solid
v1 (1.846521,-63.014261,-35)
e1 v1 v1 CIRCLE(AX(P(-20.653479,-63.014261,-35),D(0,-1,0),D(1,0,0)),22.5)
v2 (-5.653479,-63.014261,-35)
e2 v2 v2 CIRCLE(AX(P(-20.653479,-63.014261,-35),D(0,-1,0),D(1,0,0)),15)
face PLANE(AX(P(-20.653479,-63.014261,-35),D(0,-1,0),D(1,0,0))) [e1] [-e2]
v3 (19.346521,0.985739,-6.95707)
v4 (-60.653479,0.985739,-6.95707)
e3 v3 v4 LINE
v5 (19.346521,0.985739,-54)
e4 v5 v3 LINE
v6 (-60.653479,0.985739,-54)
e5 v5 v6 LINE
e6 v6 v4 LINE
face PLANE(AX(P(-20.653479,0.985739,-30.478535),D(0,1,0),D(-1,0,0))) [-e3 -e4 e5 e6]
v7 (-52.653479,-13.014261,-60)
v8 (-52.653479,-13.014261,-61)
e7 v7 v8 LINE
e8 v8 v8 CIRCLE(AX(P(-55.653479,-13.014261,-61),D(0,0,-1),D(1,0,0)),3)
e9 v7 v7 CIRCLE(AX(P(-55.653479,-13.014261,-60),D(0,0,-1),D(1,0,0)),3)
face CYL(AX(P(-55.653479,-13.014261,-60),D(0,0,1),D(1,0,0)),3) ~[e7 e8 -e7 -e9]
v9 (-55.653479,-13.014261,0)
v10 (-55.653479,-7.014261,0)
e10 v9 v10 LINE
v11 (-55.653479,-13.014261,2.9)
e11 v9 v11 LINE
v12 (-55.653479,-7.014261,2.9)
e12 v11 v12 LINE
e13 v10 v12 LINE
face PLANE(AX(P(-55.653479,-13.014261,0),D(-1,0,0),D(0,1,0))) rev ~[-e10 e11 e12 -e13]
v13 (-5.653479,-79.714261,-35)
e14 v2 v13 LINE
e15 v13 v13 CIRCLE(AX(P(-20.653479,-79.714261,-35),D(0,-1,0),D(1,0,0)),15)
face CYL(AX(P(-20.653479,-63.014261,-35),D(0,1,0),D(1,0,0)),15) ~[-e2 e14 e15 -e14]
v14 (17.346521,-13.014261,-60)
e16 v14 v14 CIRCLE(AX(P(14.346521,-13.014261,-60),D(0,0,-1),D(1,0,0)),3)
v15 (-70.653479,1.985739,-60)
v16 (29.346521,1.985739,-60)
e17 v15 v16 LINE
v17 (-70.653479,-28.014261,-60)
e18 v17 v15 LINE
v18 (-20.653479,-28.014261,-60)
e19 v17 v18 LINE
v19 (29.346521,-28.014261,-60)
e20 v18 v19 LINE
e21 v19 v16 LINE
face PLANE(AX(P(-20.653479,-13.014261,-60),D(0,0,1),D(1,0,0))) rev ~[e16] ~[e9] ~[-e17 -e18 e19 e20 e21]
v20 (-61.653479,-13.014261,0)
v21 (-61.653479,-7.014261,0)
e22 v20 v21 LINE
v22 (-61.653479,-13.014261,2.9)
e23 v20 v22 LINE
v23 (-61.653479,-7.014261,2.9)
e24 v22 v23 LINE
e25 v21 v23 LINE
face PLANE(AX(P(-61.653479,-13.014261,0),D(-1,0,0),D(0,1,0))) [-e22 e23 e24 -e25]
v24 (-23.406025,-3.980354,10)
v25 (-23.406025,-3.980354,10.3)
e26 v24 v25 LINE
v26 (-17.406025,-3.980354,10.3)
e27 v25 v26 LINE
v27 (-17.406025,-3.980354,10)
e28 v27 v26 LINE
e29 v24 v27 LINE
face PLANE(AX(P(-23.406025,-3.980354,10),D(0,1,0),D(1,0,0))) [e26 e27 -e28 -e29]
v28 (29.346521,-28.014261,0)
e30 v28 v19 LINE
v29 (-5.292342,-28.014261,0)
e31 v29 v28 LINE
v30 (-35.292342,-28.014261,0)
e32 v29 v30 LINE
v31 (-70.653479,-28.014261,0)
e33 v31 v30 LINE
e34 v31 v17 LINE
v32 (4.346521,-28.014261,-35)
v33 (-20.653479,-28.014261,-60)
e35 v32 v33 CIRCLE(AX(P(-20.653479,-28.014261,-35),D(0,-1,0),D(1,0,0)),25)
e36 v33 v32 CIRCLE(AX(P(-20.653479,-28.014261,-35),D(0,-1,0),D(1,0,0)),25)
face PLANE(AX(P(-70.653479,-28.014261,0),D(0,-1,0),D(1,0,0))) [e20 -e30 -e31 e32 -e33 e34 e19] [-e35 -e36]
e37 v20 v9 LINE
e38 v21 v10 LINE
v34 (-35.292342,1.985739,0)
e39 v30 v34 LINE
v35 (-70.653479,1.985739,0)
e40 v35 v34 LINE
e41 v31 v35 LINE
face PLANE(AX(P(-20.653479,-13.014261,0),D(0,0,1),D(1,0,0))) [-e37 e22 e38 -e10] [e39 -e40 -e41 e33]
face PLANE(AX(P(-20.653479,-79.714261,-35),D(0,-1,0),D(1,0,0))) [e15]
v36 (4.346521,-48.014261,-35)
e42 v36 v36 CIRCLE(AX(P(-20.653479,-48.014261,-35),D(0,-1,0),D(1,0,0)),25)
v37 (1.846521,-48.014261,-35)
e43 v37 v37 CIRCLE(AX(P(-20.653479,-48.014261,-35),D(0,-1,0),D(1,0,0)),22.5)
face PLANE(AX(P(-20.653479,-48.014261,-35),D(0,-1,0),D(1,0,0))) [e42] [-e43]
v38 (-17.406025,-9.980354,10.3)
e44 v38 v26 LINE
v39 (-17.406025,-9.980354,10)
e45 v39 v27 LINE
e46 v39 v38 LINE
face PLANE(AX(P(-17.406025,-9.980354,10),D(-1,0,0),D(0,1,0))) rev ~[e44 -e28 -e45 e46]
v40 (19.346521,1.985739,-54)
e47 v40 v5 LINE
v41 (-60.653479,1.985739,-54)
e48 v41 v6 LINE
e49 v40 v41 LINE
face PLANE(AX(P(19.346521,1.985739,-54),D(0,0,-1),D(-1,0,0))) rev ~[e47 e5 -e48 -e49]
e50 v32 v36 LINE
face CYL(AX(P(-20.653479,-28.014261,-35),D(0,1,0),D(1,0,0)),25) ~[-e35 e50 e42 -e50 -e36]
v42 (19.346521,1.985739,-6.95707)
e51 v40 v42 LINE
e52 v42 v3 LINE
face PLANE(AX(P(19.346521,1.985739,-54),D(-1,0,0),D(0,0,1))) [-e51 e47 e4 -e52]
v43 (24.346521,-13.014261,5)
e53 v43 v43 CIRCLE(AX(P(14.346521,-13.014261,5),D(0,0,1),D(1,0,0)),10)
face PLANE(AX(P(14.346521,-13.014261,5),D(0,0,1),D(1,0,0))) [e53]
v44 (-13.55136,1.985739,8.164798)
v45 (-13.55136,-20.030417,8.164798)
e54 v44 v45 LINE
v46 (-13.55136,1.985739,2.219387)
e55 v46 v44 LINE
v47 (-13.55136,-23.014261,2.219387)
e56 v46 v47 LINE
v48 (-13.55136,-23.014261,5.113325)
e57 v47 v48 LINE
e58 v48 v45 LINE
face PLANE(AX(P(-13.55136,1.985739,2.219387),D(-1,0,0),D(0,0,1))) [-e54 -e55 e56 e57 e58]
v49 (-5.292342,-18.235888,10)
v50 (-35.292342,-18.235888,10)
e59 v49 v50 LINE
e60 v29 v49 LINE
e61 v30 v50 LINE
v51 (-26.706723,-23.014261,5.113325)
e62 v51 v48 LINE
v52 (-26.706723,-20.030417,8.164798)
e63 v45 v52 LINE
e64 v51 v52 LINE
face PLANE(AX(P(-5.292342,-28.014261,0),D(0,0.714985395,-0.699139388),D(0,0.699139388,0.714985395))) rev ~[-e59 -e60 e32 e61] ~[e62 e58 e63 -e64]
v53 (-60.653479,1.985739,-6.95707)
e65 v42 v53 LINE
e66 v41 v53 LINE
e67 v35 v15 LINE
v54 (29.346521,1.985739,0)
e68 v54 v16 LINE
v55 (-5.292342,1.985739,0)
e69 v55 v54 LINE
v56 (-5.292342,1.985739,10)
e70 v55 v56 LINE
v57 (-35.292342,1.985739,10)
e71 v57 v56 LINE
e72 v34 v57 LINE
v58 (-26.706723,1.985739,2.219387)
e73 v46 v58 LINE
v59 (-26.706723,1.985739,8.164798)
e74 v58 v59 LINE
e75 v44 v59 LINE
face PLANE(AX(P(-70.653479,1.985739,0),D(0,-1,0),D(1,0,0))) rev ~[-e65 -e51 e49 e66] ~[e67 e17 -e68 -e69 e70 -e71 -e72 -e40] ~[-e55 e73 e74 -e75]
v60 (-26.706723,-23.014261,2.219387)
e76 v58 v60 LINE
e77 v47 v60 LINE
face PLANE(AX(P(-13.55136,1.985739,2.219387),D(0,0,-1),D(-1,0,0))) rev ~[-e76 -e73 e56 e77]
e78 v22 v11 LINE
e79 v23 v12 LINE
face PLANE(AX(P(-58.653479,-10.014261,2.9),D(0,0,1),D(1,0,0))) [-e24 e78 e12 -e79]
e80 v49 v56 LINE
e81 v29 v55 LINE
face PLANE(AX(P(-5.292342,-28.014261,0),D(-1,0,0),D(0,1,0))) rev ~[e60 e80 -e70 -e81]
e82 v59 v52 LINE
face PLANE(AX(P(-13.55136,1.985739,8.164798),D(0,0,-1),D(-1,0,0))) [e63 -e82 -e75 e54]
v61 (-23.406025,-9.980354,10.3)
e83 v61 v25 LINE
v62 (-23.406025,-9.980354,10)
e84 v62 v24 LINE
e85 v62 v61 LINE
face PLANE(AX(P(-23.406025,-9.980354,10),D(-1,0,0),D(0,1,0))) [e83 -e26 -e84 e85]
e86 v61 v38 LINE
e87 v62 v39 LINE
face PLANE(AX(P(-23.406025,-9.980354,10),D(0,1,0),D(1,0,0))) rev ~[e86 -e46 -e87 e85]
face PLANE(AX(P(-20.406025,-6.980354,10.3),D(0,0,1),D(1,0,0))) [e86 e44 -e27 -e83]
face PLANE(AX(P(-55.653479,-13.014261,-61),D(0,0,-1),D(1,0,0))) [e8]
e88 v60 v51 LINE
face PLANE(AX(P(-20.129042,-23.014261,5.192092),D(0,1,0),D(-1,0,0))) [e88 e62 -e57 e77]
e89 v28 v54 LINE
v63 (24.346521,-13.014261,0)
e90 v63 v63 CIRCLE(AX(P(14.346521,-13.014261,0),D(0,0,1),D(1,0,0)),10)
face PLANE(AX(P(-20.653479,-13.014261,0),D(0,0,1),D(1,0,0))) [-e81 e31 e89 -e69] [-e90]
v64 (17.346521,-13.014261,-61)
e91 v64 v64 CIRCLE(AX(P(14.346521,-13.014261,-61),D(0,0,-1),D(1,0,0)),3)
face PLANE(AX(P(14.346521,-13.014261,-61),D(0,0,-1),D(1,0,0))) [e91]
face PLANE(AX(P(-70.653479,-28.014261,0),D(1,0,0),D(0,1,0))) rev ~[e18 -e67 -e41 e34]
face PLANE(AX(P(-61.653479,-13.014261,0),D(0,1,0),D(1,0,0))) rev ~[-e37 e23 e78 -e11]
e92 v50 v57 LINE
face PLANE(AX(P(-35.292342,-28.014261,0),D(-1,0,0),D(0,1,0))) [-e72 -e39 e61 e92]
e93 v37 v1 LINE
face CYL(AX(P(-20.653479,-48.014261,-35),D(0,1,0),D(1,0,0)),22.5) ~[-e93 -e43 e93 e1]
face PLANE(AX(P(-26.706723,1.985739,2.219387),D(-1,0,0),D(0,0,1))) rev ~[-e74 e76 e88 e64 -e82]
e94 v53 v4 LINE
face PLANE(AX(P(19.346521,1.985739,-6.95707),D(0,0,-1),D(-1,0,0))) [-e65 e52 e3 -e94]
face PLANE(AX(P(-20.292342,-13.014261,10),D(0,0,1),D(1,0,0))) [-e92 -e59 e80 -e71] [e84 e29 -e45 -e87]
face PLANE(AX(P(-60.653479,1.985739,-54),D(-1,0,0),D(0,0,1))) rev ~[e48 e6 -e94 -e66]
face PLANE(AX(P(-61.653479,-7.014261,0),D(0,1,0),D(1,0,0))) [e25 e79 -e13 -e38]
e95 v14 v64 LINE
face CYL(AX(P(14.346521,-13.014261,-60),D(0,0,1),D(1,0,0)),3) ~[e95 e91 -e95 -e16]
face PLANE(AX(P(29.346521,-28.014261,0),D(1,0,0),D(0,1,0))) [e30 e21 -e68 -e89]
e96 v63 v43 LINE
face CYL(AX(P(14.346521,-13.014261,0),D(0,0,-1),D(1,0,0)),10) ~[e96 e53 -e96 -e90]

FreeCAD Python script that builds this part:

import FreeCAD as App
import Part
import Sketcher
from FreeCAD import Vector

doc = App.newDocument("Part")
body = doc.addObject("PartDesign::Body", "Body")

sketch1 = body.newObject("Sketcher::SketchObject", "Sketch")
sketch1.AttachmentSupport = (doc.getObject("XY_Plane"), [""])
sketch1.MapMode = "FlatFace"
sketch1.addGeometry([
    Part.LineSegment(Vector(-70.653479, 1.985739, 0), Vector(-70.653479, -28.014261, 0)),
    Part.LineSegment(Vector(-70.653479, -28.014261, 0), Vector(29.346521, -28.014261, 0)),
    Part.LineSegment(Vector(29.346521, -28.014261, 0), Vector(29.346521, 1.985739, 0)),
    Part.LineSegment(Vector(29.346521, 1.985739, 0), Vector(-70.653479, 1.985739, 0)),
], False)
sketch1.addConstraint([
    Sketcher.Constraint("Coincident", 0, 2, 1, 1),
    Sketcher.Constraint("Coincident", 1, 2, 2, 1),
    Sketcher.Constraint("Coincident", 2, 2, 3, 1),
    Sketcher.Constraint("Coincident", 3, 2, 0, 1),
    Sketcher.Constraint("Vertical", 0),
    Sketcher.Constraint("Horizontal", 1),
    Sketcher.Constraint("Vertical", 2),
    Sketcher.Constraint("Horizontal", 3),
    Sketcher.Constraint("DistanceX", 1, 1, 1, 2, 100.0),
    Sketcher.Constraint("DistanceY", 0, 2, 0, 1, 30.0),
    Sketcher.Constraint("DistanceX", 0, 2, -1, 1, 70.653479),
    Sketcher.Constraint("DistanceY", 0, 2, -1, 1, 28.014261),
])
pad1 = body.newObject("PartDesign::Pad", "Pad")
pad1.Profile = sketch1
pad1.Length = 60
pad1.Reversed = True

sketch2 = body.newObject("Sketcher::SketchObject", "Sketch001")
sketch2.AttachmentSupport = (doc.getObject("XY_Plane"), [""])
sketch2.MapMode = "FlatFace"
sketch2.addGeometry([
    Part.LineSegment(Vector(-61.653479, -7.014261, 0), Vector(-61.653479, -13.014261, 0)),
    Part.LineSegment(Vector(-61.653479, -13.014261, 0), Vector(-55.653479, -13.014261, 0)),
    Part.LineSegment(Vector(-55.653479, -13.014261, 0), Vector(-55.653479, -7.014261, 0)),
    Part.LineSegment(Vector(-55.653479, -7.014261, 0), Vector(-61.653479, -7.014261, 0)),
], False)
sketch2.addConstraint([
    Sketcher.Constraint("Coincident", 0, 2, 1, 1),
    Sketcher.Constraint("Coincident", 1, 2, 2, 1),
    Sketcher.Constraint("Coincident", 2, 2, 3, 1),
    Sketcher.Constraint("Coincident", 3, 2, 0, 1),
    Sketcher.Constraint("Vertical", 0),
    Sketcher.Constraint("Horizontal", 1),
    Sketcher.Constraint("Vertical", 2),
    Sketcher.Constraint("Horizontal", 3),
    Sketcher.Constraint("Equal", 3, 0),
    Sketcher.Constraint("DistanceX", 1, 1, 1, 2, 6.0),
    Sketcher.Constraint("DistanceX", 0, 2, -1, 1, 61.653479),
    Sketcher.Constraint("DistanceY", 0, 2, -1, 1, 13.014261),
])
pad2 = body.newObject("PartDesign::Pad", "Pad001")
pad2.Profile = sketch2
pad2.Length = 2.9

sketch3 = body.newObject("Sketcher::SketchObject", "Sketch002")
sketch3.AttachmentSupport = (doc.getObject("XY_Plane"), [""])
sketch3.MapMode = "FlatFace"
sketch3.addGeometry([
    Part.LineSegment(Vector(-35.292342, 1.985739, 0), Vector(-35.292342, -28.014261, 0)),
    Part.LineSegment(Vector(-35.292342, -28.014261, 0), Vector(-5.292342, -28.014261, 0)),
    Part.LineSegment(Vector(-5.292342, -28.014261, 0), Vector(-5.292342, 1.985739, 0)),
    Part.LineSegment(Vector(-5.292342, 1.985739, 0), Vector(-35.292342, 1.985739, 0)),
], False)
sketch3.addConstraint([
    Sketcher.Constraint("Coincident", 0, 2, 1, 1),
    Sketcher.Constraint("Coincident", 1, 2, 2, 1),
    Sketcher.Constraint("Coincident", 2, 2, 3, 1),
    Sketcher.Constraint("Coincident", 3, 2, 0, 1),
    Sketcher.Constraint("Vertical", 0),
    Sketcher.Constraint("Horizontal", 1),
    Sketcher.Constraint("Vertical", 2),
    Sketcher.Constraint("Horizontal", 3),
    Sketcher.Constraint("Equal", 3, 0),
    Sketcher.Constraint("DistanceX", 1, 1, 1, 2, 30.0),
    Sketcher.Constraint("DistanceX", 0, 2, -1, 1, 35.292342),
    Sketcher.Constraint("DistanceY", 0, 2, -1, 1, 28.014261),
])
pad3 = body.newObject("PartDesign::Pad", "Pad002")
pad3.Profile = sketch3
pad3.Length = 10

sketch4 = body.newObject("Sketcher::SketchObject", "Sketch003")
sketch4.AttachmentSupport = (doc.getObject("YZ_Plane"), [""])
sketch4.MapMode = "FlatFace"
sketch4.AttachmentOffset = App.Placement(Vector(0, 0, -5.292342), App.Rotation())
sketch4.addGeometry([
    Part.LineSegment(Vector(-18.235888, 10, 0), Vector(-28.014261, 10, 0)),
    Part.LineSegment(Vector(-28.014261, 10, 0), Vector(-28.014261, 0, 0)),
    Part.LineSegment(Vector(-28.014261, 0, 0), Vector(-18.235888, 10, 0)),
], False)
sketch4.addConstraint([
    Sketcher.Constraint("Coincident", 0, 2, 1, 1),
    Sketcher.Constraint("Coincident", 1, 2, 2, 1),
    Sketcher.Constraint("Coincident", 2, 2, 0, 1),
    Sketcher.Constraint("Horizontal", 0),
    Sketcher.Constraint("Vertical", 1),
    Sketcher.Constraint("PointOnObject", 1, 2, -1),
    Sketcher.Constraint("DistanceY", 1, 2, 1, 1, 10.0),
    Sketcher.Constraint("Distance", 2, 13.9863),
    Sketcher.Constraint("DistanceX", 0, 2, -1, 1, 28.014261),
])
pocket1 = body.newObject("PartDesign::Pocket", "Pocket")
pocket1.Profile = sketch4
pocket1.Length = 30

sketch5 = body.newObject("Sketcher::SketchObject", "Sketch004")
sketch5.AttachmentSupport = (doc.getObject("XY_Plane"), [""])
sketch5.MapMode = "FlatFace"
sketch5.addGeometry(Part.Circle(Vector(14.346521, -13.014261, 0), Vector(0, 0, 1), 10), False)
sketch5.addConstraint([
    Sketcher.Constraint("Diameter", 0, 20.0),
    Sketcher.Constraint("DistanceX", -1, 1, 0, 3, 14.346521),
    Sketcher.Constraint("DistanceY", 0, 3, -1, 1, 13.014261),
])
pad4 = body.newObject("PartDesign::Pad", "Pad003")
pad4.Profile = sketch5
pad4.Length = 5

sketch6 = body.newObject("Sketcher::SketchObject", "Sketch005")
sketch6.AttachmentSupport = (doc.getObject("XZ_Plane"), [""])
sketch6.MapMode = "FlatFace"
sketch6.AttachmentOffset = App.Placement(Vector(0, 0, 28.014261), App.Rotation())
sketch6.addGeometry(Part.Circle(Vector(-20.653479, -35, 0), Vector(0, 0, 1), 25), False)
sketch6.addConstraint([
    Sketcher.Constraint("Diameter", 0, 50.0),
    Sketcher.Constraint("DistanceY", 0, 3, -1, 1, 35.0),
    Sketcher.Constraint("DistanceX", 0, 3, -1, 1, 20.653479),
])
pad5 = body.newObject("PartDesign::Pad", "Pad004")
pad5.Profile = sketch6
pad5.Length = 20

sketch7 = body.newObject("Sketcher::SketchObject", "Sketch006")
sketch7.AttachmentSupport = (doc.getObject("XZ_Plane"), [""])
sketch7.MapMode = "FlatFace"
sketch7.AttachmentOffset = App.Placement(Vector(0, 0, -1.985739), App.Rotation())
sketch7.addGeometry([
    Part.LineSegment(Vector(-13.55136, 8.164798, 0), Vector(-13.55136, 2.219387, 0)),
    Part.LineSegment(Vector(-13.55136, 2.219387, 0), Vector(-26.706723, 2.219387, 0)),
    Part.LineSegment(Vector(-26.706723, 2.219387, 0), Vector(-26.706723, 8.164798, 0)),
    Part.LineSegment(Vector(-26.706723, 8.164798, 0), Vector(-13.55136, 8.164798, 0)),
], False)
sketch7.addConstraint([
    Sketcher.Constraint("Coincident", 0, 2, 1, 1),
    Sketcher.Constraint("Coincident", 1, 2, 2, 1),
    Sketcher.Constraint("Coincident", 2, 2, 3, 1),
    Sketcher.Constraint("Coincident", 3, 2, 0, 1),
    Sketcher.Constraint("Vertical", 0),
    Sketcher.Constraint("Horizontal", 1),
    Sketcher.Constraint("Vertical", 2),
    Sketcher.Constraint("Horizontal", 3),
    Sketcher.Constraint("DistanceY", 0, 2, 0, 1, 5.945411),
    Sketcher.Constraint("DistanceX", 1, 2, 1, 1, 13.155363),
    Sketcher.Constraint("DistanceX", 0, 2, -1, 1, 13.55136),
    Sketcher.Constraint("DistanceY", -1, 1, 0, 2, 2.219387),
])
pocket2 = body.newObject("PartDesign::Pocket", "Pocket001")
pocket2.Profile = sketch7
pocket2.Length = 25
pocket2.Reversed = True

sketch8 = body.newObject("Sketcher::SketchObject", "Sketch007")
sketch8.AttachmentSupport = (doc.getObject("XZ_Plane"), [""])
sketch8.MapMode = "FlatFace"
sketch8.AttachmentOffset = App.Placement(Vector(0, 0, -1.985739), App.Rotation())
sketch8.addGeometry([
    Part.LineSegment(Vector(19.346521, -6.95707, 0), Vector(19.346521, -54, 0)),
    Part.LineSegment(Vector(19.346521, -54, 0), Vector(-60.653479, -54, 0)),
    Part.LineSegment(Vector(-60.653479, -54, 0), Vector(-60.653479, -6.95707, 0)),
    Part.LineSegment(Vector(-60.653479, -6.95707, 0), Vector(19.346521, -6.95707, 0)),
], False)
sketch8.addConstraint([
    Sketcher.Constraint("Coincident", 0, 2, 1, 1),
    Sketcher.Constraint("Coincident", 1, 2, 2, 1),
    Sketcher.Constraint("Coincident", 2, 2, 3, 1),
    Sketcher.Constraint("Coincident", 3, 2, 0, 1),
    Sketcher.Constraint("Vertical", 0),
    Sketcher.Constraint("Horizontal", 1),
    Sketcher.Constraint("Vertical", 2),
    Sketcher.Constraint("Horizontal", 3),
    Sketcher.Constraint("DistanceX", 1, 2, 1, 1, 80.0),
    Sketcher.Constraint("DistanceY", 0, 2, -1, 1, 54.0),
    Sketcher.Constraint("DistanceY", 0, 2, 0, 1, 47.04293),
    Sketcher.Constraint("DistanceX", -1, 1, 0, 2, 19.346521),
])
pocket3 = body.newObject("PartDesign::Pocket", "Pocket002")
pocket3.Profile = sketch8
pocket3.Length = 1
pocket3.Reversed = True

sketch9 = body.newObject("Sketcher::SketchObject", "Sketch008")
sketch9.AttachmentSupport = (doc.getObject("XY_Plane"), [""])
sketch9.MapMode = "FlatFace"
sketch9.AttachmentOffset = App.Placement(Vector(0, 0, -60), App.Rotation())
sketch9.addGeometry([
    Part.Circle(Vector(-55.653479, -13.014261, 0), Vector(0, 0, 1), 3),
    Part.Circle(Vector(14.346521, -13.014261, 0), Vector(0, 0, 1), 3),
], False)
sketch9.addConstraint([
    Sketcher.Constraint("Equal", 0, 1),
    Sketcher.Constraint("Horizontal", 0, 3, 1, 3),
    Sketcher.Constraint("Diameter", 0, 6.0),
    Sketcher.Constraint("DistanceX", 0, 3, 1, 3, 70.0),
    Sketcher.Constraint("DistanceX", 0, 3, -1, 1, 55.653479),
    Sketcher.Constraint("DistanceY", 0, 3, -1, 1, 13.014261),
])
pad6 = body.newObject("PartDesign::Pad", "Pad005")
pad6.Profile = sketch9
pad6.Length = 1
pad6.Reversed = True

sketch10 = body.newObject("Sketcher::SketchObject", "Sketch009")
sketch10.AttachmentSupport = (doc.getObject("XY_Plane"), [""])
sketch10.MapMode = "FlatFace"
sketch10.AttachmentOffset = App.Placement(Vector(0, 0, 10), App.Rotation())
sketch10.addGeometry([
    Part.LineSegment(Vector(-23.406025, -3.980354, 0), Vector(-23.406025, -9.980354, 0)),
    Part.LineSegment(Vector(-23.406025, -9.980354, 0), Vector(-17.406025, -9.980354, 0)),
    Part.LineSegment(Vector(-17.406025, -9.980354, 0), Vector(-17.406025, -3.980354, 0)),
    Part.LineSegment(Vector(-17.406025, -3.980354, 0), Vector(-23.406025, -3.980354, 0)),
], False)
sketch10.addConstraint([
    Sketcher.Constraint("Coincident", 0, 2, 1, 1),
    Sketcher.Constraint("Coincident", 1, 2, 2, 1),
    Sketcher.Constraint("Coincident", 2, 2, 3, 1),
    Sketcher.Constraint("Coincident", 3, 2, 0, 1),
    Sketcher.Constraint("Vertical", 0),
    Sketcher.Constraint("Horizontal", 1),
    Sketcher.Constraint("Vertical", 2),
    Sketcher.Constraint("Horizontal", 3),
    Sketcher.Constraint("Equal", 3, 0),
    Sketcher.Constraint("DistanceX", 1, 1, 1, 2, 6.0),
    Sketcher.Constraint("DistanceX", 0, 2, -1, 1, 23.406025),
    Sketcher.Constraint("DistanceY", 0, 2, -1, 1, 9.980354),
])
pad7 = body.newObject("PartDesign::Pad", "Pad006")
pad7.Profile = sketch10
pad7.Length = 0.3

sketch11 = body.newObject("Sketcher::SketchObject", "Sketch010")
sketch11.AttachmentSupport = (doc.getObject("XZ_Plane"), [""])
sketch11.MapMode = "FlatFace"
sketch11.AttachmentOffset = App.Placement(Vector(0, 0, 48.014261), App.Rotation())
sketch11.addGeometry(Part.Circle(Vector(-20.653479, -35, 0), Vector(0, 0, 1), 22.5), False)
sketch11.addConstraint([
    Sketcher.Constraint("Diameter", 0, 45.0),
    Sketcher.Constraint("DistanceY", 0, 3, -1, 1, 35.0),
    Sketcher.Constraint("DistanceX", 0, 3, -1, 1, 20.653479),
])
pad8 = body.newObject("PartDesign::Pad", "Pad007")
pad8.Profile = sketch11
pad8.Length = 15

sketch12 = body.newObject("Sketcher::SketchObject", "Sketch011")
sketch12.AttachmentSupport = (doc.getObject("XZ_Plane"), [""])
sketch12.MapMode = "FlatFace"
sketch12.AttachmentOffset = App.Placement(Vector(0, 0, 63.014261), App.Rotation())
sketch12.addGeometry(Part.Circle(Vector(-20.653479, -35, 0), Vector(0, 0, 1), 15), False)
sketch12.addConstraint([
    Sketcher.Constraint("Diameter", 0, 30.0),
    Sketcher.Constraint("DistanceY", 0, 3, -1, 1, 35.0),
    Sketcher.Constraint("DistanceX", 0, 3, -1, 1, 20.653479),
])
pad9 = body.newObject("PartDesign::Pad", "Pad008")
pad9.Profile = sketch12
pad9.Length = 16.7

doc.recompute()
